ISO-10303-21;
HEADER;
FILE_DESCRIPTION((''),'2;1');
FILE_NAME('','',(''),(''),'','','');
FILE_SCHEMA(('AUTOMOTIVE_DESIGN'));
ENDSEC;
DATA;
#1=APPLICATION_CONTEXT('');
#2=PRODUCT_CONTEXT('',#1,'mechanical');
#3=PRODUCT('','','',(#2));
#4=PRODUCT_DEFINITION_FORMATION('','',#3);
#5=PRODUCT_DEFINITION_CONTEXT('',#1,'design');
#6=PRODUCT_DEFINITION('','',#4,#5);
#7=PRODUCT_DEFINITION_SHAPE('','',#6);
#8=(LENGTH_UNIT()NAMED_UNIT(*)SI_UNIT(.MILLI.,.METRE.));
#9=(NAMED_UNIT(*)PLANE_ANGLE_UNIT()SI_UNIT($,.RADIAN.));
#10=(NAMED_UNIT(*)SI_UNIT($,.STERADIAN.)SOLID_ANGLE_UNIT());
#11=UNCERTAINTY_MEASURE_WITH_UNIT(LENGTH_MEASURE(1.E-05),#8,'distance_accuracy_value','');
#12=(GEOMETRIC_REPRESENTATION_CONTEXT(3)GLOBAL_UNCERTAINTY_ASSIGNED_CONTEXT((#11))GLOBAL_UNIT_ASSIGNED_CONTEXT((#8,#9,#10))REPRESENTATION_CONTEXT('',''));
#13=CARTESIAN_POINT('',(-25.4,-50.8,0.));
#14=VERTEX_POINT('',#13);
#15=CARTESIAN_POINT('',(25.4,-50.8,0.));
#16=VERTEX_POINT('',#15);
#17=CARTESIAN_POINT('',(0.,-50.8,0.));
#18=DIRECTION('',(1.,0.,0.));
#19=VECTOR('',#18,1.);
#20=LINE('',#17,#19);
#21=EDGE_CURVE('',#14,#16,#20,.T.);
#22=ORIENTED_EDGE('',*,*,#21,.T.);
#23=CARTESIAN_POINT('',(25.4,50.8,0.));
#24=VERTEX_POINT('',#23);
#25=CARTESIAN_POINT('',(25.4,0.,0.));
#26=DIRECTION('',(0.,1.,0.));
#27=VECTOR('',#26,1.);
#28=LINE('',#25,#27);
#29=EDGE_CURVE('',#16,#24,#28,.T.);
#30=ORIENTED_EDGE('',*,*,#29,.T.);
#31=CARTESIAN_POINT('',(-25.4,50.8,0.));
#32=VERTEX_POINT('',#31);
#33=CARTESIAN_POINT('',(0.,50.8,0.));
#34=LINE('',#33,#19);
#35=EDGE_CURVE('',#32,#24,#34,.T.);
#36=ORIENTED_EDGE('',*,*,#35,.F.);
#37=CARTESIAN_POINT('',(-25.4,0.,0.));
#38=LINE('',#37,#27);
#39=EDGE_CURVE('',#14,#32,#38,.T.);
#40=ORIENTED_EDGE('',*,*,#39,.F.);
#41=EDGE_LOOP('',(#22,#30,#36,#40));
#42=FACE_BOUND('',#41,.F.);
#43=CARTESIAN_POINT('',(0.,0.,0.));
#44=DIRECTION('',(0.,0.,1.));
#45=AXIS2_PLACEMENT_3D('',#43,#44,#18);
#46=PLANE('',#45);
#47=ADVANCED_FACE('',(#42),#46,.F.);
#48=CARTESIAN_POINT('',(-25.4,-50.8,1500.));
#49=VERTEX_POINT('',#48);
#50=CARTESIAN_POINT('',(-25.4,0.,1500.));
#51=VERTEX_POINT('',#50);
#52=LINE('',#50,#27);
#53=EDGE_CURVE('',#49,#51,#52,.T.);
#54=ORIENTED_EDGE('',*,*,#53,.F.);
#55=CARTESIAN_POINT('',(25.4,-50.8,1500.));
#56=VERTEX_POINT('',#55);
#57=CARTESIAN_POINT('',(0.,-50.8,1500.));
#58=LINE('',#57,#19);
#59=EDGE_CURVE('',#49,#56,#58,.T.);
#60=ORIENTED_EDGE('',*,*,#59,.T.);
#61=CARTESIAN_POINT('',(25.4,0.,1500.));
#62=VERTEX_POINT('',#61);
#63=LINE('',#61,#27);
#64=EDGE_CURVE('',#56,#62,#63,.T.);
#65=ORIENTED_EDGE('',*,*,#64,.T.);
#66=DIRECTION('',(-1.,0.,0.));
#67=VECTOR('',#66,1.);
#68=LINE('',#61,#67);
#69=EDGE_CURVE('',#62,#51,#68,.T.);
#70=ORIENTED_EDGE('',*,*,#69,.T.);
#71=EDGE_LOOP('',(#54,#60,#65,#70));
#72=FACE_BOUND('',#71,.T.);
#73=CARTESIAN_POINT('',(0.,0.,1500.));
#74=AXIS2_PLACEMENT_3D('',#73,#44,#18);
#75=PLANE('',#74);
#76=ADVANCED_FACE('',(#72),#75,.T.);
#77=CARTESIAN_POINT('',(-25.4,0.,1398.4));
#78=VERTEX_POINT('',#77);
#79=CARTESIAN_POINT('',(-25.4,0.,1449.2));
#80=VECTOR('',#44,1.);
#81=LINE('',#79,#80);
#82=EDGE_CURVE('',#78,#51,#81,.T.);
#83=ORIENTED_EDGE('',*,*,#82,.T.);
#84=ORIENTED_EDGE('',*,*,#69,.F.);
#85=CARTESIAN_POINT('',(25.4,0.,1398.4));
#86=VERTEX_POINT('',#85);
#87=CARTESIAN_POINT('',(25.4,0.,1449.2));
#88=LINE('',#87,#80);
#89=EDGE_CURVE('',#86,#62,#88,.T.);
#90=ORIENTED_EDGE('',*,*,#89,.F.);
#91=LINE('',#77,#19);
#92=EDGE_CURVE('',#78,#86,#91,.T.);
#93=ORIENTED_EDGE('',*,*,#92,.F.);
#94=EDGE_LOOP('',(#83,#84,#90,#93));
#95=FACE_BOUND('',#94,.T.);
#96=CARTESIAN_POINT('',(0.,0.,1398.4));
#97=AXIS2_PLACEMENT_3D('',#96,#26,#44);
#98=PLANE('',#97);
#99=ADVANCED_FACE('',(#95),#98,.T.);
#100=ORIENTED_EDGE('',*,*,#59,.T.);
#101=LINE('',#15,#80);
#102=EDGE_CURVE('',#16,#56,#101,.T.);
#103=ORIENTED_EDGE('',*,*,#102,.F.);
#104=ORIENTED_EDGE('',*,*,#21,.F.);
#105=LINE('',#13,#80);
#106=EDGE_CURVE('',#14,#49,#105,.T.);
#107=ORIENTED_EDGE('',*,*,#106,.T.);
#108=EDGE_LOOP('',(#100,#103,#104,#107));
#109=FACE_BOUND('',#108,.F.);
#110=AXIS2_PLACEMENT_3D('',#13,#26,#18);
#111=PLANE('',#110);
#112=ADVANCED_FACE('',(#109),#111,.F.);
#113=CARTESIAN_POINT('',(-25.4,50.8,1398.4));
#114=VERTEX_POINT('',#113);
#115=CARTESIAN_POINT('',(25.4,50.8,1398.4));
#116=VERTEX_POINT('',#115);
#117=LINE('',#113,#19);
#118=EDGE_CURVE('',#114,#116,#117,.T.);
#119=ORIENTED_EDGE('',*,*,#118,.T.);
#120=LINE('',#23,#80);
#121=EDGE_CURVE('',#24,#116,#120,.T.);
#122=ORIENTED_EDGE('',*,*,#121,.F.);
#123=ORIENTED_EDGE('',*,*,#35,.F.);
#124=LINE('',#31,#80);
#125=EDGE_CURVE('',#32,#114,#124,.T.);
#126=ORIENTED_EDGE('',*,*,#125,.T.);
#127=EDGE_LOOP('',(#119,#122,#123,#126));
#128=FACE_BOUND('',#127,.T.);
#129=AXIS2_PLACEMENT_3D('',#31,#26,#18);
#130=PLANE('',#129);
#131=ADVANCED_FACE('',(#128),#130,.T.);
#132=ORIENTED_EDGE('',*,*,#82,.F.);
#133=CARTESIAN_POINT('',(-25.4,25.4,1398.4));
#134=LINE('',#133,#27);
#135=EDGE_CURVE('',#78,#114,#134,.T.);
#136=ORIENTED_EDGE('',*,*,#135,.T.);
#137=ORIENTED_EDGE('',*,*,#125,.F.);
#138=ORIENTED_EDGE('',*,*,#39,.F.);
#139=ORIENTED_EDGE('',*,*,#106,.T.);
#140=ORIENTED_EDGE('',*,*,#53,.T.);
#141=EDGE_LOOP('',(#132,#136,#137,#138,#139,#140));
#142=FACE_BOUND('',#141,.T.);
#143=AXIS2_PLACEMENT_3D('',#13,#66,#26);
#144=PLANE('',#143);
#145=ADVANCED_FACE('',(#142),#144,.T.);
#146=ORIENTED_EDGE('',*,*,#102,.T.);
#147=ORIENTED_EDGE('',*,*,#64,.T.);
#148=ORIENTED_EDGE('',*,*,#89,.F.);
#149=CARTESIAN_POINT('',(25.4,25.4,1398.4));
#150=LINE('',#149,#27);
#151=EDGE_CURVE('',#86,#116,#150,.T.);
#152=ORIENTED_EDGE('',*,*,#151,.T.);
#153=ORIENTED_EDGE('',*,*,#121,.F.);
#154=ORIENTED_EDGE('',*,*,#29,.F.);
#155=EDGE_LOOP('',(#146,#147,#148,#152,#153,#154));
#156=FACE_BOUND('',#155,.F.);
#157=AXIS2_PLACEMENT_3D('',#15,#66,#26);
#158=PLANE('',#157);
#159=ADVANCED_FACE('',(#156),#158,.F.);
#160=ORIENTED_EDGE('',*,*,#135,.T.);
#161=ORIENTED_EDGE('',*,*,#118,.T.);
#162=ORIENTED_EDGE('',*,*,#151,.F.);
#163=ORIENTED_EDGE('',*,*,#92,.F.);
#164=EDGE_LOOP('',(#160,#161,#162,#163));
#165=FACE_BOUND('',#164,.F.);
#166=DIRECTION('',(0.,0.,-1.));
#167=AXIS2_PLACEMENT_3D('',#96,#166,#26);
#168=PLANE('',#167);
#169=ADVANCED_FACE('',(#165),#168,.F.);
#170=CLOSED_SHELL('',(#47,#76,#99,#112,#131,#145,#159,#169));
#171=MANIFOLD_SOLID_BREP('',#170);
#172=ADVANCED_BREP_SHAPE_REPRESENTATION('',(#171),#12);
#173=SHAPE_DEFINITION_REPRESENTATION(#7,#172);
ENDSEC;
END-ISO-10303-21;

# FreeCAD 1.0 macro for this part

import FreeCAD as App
import Part
import Sketcher

V = App.Vector
Q = App.Units.Quantity

doc = App.newDocument("Part")
body = doc.addObject("PartDesign::Body", "Body")

# Sketch on XY plane
sketch1 = body.newObject("Sketcher::SketchObject", "Sketch")
sketch1.AttachmentSupport = (doc.getObject("XY_Plane"), [""])
sketch1.MapMode = "FlatFace"
sketch1.addGeometry(Part.LineSegment(V(-25, 51, 0), V(-25, -51, 0)), False)
sketch1.addGeometry(Part.LineSegment(V(-25, -51, 0), V(25, -51, 0)), False)
sketch1.addGeometry(Part.LineSegment(V(25, -51, 0), V(25, 51, 0)), False)
sketch1.addGeometry(Part.LineSegment(V(25, 51, 0), V(-25, 51, 0)), False)
sketch1.addConstraint(Sketcher.Constraint("Coincident", 0, 2, 1, 1))
sketch1.addConstraint(Sketcher.Constraint("Coincident", 1, 2, 2, 1))
sketch1.addConstraint(Sketcher.Constraint("Coincident", 2, 2, 3, 1))
sketch1.addConstraint(Sketcher.Constraint("Coincident", 3, 2, 0, 1))
sketch1.addConstraint(Sketcher.Constraint("Vertical", 0))
sketch1.addConstraint(Sketcher.Constraint("Horizontal", 1))
sketch1.addConstraint(Sketcher.Constraint("Vertical", 2))
sketch1.addConstraint(Sketcher.Constraint("Horizontal", 3))
sketch1.addConstraint(Sketcher.Constraint("Symmetric", 0, 2, 2, 2, -1, 1))
sketch1.addConstraint(Sketcher.Constraint("DistanceX", 1, 1, 1, 2, Q("2 in")))
sketch1.addConstraint(Sketcher.Constraint("DistanceY", 0, 2, 0, 1, Q("4 in")))
pad1 = body.newObject("PartDesign::Pad", "Pad")
pad1.Profile = sketch1
pad1.Length = 1500

# Sketch on YZ plane
sketch2 = body.newObject("Sketcher::SketchObject", "Sketch001")
sketch2.AttachmentSupport = (doc.getObject("YZ_Plane"), [""])
sketch2.MapMode = "FlatFace"
sketch2.addGeometry(Part.LineSegment(V(0, 1500, 0), V(0, 1398, 0)), False)
sketch2.addGeometry(Part.LineSegment(V(0, 1398, 0), V(51, 1398, 0)), False)
sketch2.addGeometry(Part.LineSegment(V(51, 1398, 0), V(51, 1500, 0)), False)
sketch2.addGeometry(Part.LineSegment(V(51, 1500, 0), V(0, 1500, 0)), False)
sketch2.addConstraint(Sketcher.Constraint("Coincident", 0, 2, 1, 1))
sketch2.addConstraint(Sketcher.Constraint("Coincident", 1, 2, 2, 1))
sketch2.addConstraint(Sketcher.Constraint("Coincident", 2, 2, 3, 1))
sketch2.addConstraint(Sketcher.Constraint("Coincident", 3, 2, 0, 1))
sketch2.addConstraint(Sketcher.Constraint("Vertical", 0))
sketch2.addConstraint(Sketcher.Constraint("Horizontal", 1))
sketch2.addConstraint(Sketcher.Constraint("Vertical", 2))
sketch2.addConstraint(Sketcher.Constraint("Horizontal", 3))
sketch2.addConstraint(Sketcher.Constraint("PointOnObject", 0, 2, -2))
sketch2.addConstraint(Sketcher.Constraint("DistanceX", 1, 1, 1, 2, Q("2 in")))
sketch2.addConstraint(Sketcher.Constraint("DistanceY", 0, 2, 0, 1, Q("4 in")))
sketch2.addConstraint(Sketcher.Constraint("DistanceY", -1, 1, 0, 2, Q("1398.4 mm")))
pocket1 = body.newObject("PartDesign::Pocket", "Pocket")
pocket1.Profile = sketch2
pocket1.Length = Q("2 in")
pocket1.Midplane = True

doc.recompute()
